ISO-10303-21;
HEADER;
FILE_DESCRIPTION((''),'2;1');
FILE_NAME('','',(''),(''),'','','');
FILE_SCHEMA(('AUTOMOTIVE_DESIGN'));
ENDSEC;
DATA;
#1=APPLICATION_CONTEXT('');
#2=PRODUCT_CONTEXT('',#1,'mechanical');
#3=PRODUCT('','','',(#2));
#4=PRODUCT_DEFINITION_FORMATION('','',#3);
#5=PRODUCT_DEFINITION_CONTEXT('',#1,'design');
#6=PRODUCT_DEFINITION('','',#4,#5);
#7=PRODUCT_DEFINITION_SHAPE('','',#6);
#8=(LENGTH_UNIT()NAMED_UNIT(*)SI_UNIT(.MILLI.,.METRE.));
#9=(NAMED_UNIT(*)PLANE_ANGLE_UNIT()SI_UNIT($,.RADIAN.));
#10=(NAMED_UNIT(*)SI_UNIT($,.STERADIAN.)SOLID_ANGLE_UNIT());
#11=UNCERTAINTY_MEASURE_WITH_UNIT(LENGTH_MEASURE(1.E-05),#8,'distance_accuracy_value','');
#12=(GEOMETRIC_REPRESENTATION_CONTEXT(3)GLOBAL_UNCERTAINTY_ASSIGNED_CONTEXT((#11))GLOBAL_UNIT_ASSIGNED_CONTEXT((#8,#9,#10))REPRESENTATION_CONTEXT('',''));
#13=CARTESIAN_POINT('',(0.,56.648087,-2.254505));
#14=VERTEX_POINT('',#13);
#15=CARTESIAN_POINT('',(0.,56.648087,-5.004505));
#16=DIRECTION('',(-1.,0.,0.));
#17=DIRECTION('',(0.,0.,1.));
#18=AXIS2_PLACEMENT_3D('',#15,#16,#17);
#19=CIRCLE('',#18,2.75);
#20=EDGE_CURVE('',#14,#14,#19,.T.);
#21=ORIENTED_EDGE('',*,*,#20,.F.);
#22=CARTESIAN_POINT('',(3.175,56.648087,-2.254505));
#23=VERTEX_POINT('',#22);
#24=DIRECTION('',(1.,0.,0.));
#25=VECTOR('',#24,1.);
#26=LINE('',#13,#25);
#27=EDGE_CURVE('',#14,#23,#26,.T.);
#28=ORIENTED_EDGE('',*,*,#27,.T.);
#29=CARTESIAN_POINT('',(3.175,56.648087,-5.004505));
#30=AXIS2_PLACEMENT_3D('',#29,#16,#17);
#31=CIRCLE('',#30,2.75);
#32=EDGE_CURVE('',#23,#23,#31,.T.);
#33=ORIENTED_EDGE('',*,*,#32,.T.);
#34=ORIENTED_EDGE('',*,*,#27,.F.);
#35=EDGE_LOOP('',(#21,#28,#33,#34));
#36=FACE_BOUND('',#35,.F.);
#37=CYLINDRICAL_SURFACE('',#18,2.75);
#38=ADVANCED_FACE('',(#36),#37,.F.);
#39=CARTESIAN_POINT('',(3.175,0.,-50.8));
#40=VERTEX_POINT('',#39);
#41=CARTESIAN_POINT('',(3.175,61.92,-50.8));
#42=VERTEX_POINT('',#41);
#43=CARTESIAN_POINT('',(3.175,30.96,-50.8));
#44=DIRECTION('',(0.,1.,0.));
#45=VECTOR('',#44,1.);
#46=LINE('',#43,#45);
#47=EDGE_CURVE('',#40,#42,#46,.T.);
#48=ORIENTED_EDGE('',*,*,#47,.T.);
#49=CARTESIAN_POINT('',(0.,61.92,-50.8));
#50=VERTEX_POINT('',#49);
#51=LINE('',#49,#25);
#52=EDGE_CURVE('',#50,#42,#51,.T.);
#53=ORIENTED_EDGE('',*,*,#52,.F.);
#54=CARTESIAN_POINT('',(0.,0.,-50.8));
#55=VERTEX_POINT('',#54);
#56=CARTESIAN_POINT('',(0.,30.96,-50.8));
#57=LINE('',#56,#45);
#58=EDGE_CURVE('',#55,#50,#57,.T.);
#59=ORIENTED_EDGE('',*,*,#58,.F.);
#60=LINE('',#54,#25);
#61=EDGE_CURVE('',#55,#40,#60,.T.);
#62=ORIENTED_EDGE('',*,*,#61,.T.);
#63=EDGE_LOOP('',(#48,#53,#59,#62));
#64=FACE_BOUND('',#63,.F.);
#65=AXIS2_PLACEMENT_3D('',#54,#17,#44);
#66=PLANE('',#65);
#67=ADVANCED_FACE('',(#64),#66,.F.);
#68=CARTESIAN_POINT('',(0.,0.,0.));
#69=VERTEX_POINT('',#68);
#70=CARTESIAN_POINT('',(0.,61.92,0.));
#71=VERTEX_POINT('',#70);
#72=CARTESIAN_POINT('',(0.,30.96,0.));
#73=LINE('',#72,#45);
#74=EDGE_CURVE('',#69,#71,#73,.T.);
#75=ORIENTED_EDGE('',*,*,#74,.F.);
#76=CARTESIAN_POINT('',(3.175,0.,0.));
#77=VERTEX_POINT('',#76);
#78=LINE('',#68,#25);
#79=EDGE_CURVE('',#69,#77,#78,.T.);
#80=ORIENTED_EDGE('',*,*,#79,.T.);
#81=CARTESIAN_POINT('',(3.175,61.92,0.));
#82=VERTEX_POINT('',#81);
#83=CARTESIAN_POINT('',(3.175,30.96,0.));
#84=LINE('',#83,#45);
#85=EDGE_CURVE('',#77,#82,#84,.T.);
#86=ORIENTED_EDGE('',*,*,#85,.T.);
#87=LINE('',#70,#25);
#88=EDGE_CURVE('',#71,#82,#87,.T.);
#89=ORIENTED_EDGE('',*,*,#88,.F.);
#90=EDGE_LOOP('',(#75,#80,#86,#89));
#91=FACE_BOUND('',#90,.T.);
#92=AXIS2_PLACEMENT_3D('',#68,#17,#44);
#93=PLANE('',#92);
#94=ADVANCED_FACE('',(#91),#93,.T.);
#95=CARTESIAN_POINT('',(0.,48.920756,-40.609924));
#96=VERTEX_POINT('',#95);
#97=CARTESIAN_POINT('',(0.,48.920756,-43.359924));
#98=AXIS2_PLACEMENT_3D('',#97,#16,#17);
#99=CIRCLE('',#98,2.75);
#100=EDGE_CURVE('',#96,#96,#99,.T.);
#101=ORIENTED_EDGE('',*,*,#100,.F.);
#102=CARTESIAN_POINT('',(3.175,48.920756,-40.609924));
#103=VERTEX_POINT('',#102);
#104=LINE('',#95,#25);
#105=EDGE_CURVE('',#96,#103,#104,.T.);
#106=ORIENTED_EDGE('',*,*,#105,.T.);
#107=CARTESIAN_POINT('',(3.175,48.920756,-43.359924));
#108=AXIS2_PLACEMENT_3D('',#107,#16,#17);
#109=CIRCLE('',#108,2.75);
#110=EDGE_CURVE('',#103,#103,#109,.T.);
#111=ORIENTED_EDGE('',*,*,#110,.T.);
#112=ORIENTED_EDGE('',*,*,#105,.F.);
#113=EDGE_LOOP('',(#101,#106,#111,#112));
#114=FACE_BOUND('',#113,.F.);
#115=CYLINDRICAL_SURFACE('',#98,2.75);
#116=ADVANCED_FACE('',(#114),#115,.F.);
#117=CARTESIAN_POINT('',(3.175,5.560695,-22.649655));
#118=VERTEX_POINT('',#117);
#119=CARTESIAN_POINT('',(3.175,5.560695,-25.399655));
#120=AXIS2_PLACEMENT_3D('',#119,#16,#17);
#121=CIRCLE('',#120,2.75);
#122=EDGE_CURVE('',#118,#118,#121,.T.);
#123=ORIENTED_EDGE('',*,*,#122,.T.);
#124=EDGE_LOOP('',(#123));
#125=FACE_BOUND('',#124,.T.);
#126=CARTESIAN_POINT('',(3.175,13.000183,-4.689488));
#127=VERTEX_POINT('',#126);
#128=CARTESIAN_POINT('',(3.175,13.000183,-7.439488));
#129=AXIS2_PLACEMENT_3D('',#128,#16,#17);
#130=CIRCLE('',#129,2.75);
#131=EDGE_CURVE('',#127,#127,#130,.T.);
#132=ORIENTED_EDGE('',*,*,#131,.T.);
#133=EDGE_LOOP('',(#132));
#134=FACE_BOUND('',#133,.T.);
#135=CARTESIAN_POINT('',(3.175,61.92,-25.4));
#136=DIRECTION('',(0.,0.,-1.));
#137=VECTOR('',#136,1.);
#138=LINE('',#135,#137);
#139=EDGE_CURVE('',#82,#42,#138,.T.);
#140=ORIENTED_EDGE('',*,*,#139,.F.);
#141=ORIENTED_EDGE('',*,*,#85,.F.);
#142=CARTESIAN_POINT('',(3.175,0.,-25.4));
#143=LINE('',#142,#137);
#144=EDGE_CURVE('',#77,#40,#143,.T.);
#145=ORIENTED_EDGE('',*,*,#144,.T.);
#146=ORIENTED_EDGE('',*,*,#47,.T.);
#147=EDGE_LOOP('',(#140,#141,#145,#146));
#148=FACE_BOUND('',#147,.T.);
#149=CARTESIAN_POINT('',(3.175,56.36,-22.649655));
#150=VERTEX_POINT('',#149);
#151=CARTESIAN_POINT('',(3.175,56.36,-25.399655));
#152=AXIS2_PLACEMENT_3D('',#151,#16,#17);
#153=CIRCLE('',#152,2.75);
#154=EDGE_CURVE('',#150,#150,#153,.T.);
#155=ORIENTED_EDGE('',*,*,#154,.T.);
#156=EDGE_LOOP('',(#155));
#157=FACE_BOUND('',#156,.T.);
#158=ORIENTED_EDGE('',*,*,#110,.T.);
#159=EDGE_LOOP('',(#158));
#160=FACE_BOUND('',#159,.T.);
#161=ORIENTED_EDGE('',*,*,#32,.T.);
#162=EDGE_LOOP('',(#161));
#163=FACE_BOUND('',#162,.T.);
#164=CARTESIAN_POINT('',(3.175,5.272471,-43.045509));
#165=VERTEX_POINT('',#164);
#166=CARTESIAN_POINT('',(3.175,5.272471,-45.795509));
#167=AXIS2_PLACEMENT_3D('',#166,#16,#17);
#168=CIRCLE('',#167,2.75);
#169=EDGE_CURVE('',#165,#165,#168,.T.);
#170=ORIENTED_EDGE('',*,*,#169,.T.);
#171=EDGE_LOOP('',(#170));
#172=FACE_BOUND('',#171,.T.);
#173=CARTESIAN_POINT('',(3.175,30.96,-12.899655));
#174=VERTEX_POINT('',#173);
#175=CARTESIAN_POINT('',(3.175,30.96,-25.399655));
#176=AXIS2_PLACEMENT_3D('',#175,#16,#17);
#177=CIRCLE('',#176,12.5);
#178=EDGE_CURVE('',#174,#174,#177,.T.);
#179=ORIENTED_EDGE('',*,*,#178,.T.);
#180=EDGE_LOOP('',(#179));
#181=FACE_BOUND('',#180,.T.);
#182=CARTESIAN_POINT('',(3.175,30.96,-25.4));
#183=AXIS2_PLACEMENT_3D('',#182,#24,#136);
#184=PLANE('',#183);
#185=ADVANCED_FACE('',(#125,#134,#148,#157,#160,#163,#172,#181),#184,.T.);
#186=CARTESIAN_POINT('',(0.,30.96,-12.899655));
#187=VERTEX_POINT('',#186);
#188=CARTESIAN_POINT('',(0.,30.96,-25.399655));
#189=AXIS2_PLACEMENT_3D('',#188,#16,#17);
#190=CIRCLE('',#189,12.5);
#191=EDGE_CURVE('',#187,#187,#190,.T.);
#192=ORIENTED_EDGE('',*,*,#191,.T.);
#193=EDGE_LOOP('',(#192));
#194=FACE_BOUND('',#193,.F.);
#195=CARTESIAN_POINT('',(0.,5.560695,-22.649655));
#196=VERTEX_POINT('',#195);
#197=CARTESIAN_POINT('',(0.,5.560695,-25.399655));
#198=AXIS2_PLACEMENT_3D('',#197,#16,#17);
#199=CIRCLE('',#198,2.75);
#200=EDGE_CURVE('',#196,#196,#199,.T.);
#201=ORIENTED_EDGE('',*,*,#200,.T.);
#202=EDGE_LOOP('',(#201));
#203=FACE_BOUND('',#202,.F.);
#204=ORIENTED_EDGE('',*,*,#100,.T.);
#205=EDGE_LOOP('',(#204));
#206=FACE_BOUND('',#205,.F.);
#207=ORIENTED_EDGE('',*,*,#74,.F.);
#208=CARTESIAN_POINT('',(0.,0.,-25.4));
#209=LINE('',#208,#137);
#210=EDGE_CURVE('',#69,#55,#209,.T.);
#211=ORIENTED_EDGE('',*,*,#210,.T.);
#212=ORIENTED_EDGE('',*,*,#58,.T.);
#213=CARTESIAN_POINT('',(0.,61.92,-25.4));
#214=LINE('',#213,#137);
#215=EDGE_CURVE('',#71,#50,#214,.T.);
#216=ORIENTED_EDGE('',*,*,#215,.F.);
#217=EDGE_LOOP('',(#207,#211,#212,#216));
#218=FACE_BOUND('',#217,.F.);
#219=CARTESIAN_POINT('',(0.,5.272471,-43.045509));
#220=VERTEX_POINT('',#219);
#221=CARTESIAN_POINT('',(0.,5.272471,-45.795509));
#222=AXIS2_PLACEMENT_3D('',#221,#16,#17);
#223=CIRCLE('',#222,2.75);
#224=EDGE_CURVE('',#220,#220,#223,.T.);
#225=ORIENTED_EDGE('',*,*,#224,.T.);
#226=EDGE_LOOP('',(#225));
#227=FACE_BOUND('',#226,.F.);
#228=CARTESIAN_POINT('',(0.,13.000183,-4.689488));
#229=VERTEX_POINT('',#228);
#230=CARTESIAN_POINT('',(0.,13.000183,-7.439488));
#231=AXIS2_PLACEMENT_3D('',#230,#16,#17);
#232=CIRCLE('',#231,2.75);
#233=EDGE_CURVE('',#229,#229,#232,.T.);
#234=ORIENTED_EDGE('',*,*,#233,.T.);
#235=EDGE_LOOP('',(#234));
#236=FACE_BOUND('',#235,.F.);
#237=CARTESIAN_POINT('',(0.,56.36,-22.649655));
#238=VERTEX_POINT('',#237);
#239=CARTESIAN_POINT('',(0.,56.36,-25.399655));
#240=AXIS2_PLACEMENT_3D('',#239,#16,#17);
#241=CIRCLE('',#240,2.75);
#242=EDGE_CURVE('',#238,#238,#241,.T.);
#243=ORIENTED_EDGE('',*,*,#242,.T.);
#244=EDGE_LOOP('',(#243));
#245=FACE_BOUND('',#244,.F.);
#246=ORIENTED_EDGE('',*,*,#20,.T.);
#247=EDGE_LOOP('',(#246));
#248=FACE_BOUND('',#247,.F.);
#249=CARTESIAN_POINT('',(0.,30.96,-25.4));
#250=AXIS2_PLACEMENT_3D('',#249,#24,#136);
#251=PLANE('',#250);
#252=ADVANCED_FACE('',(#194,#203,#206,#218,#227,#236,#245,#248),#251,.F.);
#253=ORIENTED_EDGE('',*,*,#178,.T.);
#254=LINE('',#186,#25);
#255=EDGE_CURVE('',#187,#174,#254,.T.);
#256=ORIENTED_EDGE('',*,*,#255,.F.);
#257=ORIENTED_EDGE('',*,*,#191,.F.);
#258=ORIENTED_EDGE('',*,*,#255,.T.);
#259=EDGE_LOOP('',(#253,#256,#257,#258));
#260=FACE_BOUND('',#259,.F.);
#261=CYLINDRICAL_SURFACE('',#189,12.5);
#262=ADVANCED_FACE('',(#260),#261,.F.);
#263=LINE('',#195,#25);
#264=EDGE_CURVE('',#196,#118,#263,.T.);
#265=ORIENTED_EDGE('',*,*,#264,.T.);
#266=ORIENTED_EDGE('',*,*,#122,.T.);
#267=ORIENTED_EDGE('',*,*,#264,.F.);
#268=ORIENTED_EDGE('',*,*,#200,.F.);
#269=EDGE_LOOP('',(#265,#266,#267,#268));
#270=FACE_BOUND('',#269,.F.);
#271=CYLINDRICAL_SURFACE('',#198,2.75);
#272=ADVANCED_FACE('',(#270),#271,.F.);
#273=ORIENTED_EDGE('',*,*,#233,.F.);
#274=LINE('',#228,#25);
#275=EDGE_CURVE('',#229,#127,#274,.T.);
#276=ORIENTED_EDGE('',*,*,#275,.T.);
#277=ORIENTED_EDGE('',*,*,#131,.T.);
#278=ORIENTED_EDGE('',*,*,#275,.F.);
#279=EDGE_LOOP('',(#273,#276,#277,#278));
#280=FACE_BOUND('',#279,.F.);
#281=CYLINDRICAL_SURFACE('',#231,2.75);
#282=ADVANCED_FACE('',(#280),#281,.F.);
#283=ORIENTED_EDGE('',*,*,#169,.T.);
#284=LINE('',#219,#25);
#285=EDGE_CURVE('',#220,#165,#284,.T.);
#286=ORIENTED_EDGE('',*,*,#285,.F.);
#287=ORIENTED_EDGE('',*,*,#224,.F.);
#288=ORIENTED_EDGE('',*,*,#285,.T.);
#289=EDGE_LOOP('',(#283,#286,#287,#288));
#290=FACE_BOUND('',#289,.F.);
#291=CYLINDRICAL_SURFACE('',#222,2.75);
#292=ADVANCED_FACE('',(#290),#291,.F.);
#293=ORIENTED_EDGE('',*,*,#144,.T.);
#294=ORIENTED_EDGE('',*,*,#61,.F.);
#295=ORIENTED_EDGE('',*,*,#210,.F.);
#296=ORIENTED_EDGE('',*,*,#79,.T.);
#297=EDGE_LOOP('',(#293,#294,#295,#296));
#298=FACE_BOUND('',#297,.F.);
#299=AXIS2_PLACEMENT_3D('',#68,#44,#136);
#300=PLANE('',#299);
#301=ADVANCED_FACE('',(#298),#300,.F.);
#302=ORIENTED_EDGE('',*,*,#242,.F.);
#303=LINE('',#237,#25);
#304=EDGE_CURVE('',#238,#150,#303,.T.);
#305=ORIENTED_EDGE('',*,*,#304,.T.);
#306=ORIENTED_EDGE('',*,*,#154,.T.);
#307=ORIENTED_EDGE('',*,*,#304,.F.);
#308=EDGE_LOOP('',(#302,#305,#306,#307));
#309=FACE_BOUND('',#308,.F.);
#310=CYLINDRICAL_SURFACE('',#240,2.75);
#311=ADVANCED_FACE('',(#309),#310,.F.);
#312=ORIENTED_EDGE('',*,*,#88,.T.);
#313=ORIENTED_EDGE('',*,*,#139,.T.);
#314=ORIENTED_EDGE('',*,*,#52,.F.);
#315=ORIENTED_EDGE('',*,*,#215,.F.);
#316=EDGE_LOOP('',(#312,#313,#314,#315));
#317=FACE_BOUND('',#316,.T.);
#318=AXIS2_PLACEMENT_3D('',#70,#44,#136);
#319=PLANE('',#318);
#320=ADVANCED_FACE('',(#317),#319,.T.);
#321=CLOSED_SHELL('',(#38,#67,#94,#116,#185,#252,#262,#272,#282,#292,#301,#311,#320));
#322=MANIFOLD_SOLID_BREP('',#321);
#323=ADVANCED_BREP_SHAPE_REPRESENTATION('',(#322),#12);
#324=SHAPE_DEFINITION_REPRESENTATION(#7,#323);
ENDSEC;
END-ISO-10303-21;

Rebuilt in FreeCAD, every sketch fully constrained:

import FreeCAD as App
import Part
import Sketcher


def add_polygon(sketch, points):
    """Adds a closed chain of lines whose ends are joined by coincident constraints."""
    first, n = sketch.GeometryCount, len(points)
    for a, b in zip(points, points[1:] + points[:1]):
        sketch.addGeometry(Part.LineSegment(App.Vector(*a, 0), App.Vector(*b, 0)), False)
    for i in range(n):
        sketch.addConstraint(Sketcher.Constraint("Coincident", first + i, 2, first + (i + 1) % n, 1))

doc = App.newDocument("Part")
params = doc.addObject("Spreadsheet::Sheet", "Params")
for row, (alias, value) in enumerate([
    ("sketch1_height", "50.8 mm"),
    ("sketch1_width", "61.92 mm"),
    ("pad1_length", "3.175 mm"),
    ("sketch2_diameter", "25 mm"),
    ("sketch2_diameter2", "5.5 mm"),
], start=1):
    params.set(f"A{row}", alias)
    params.set(f"B{row}", "=" + value)
    params.setAlias(f"B{row}", alias)

body = doc.addObject("PartDesign::Body", "Body")

sketch1 = body.newObject("Sketcher::SketchObject", "Sketch")
sketch1.AttachmentSupport = (doc.getObject("YZ_Plane"), [""])
sketch1.MapMode = "FlatFace"
add_polygon(sketch1, [(62, 0), (0, 0), (0, -51), (62, -51)])
sketch1.addConstraint([
    Sketcher.Constraint("Horizontal", 0),
    Sketcher.Constraint("Vertical", 1),
    Sketcher.Constraint("Horizontal", 2),
    Sketcher.Constraint("Vertical", 3),
    Sketcher.Constraint("Coincident", 0, 2, -1, 1),
    Sketcher.Constraint("DistanceY", 1, 2, 1, 1, 50.8),
    Sketcher.Constraint("DistanceX", 0, 2, 0, 1, 61.92),
])
sketch1.setExpression("Constraints[9]", "Params.sketch1_height")
sketch1.setExpression("Constraints[10]", "Params.sketch1_width")
pad1 = body.newObject("PartDesign::Pad", "Pad")
pad1.Profile = sketch1
pad1.setExpression("Length", "Params.pad1_length")

sketch2 = body.newObject("Sketcher::SketchObject", "Sketch001")
sketch2.AttachmentSupport = (doc.getObject("YZ_Plane"), [""])
sketch2.MapMode = "FlatFace"
sketch2.addGeometry([
    Part.Circle(App.Vector(56.4, -25.4, 0), App.Vector(0, 0, 1), 2.8),
    Part.Circle(App.Vector(48.9, -43.4, 0), App.Vector(0, 0, 1), 2.8),
    Part.Circle(App.Vector(56.6, -5, 0), App.Vector(0, 0, 1), 2.8),
    Part.Circle(App.Vector(13, -7.4, 0), App.Vector(0, 0, 1), 2.8),
    Part.Circle(App.Vector(5.3, -45.8, 0), App.Vector(0, 0, 1), 2.8),
    Part.Circle(App.Vector(5.6, -25.4, 0), App.Vector(0, 0, 1), 2.8),
    Part.Circle(App.Vector(31, -25.4, 0), App.Vector(0, 0, 1), 12.5),
], False)
sketch2.addConstraint([
    Sketcher.Constraint("Equal", 0, 1),
    Sketcher.Constraint("Equal", 1, 2),
    Sketcher.Constraint("Equal", 2, 3),
    Sketcher.Constraint("Equal", 3, 4),
    Sketcher.Constraint("Equal", 4, 5),
    Sketcher.Constraint("Horizontal", 0, 3, 5, 3),
    Sketcher.Constraint("Horizontal", 5, 3, 6, 3),
    Sketcher.Constraint("Diameter", 6, 25.0),
    Sketcher.Constraint("Diameter", 0, 5.5),
    Sketcher.Constraint("DistanceX", 6, 3, 0, 3, 25.4),
    Sketcher.Constraint("DistanceX", -1, 1, 0, 3, 56.36),
    Sketcher.Constraint("DistanceX", -1, 1, 4, 3, 5.272471),
    Sketcher.Constraint("DistanceY", 4, 3, -1, 1, 45.795509),
    Sketcher.Constraint("DistanceY", 1, 3, 0, 3, 17.960269),
    Sketcher.Constraint("DistanceY", 0, 3, 2, 3, 20.395151),
    Sketcher.Constraint("DistanceX", 1, 3, 2, 3, 7.727331),
    Sketcher.Constraint("DistanceX", 4, 3, 3, 3, 7.727712),
    Sketcher.Constraint("DistanceY", 4, 3, 3, 3, 38.356022),
    Sketcher.Constraint("DistanceX", 5, 3, 1, 3, 43.360061),
    Sketcher.Constraint("DistanceY", 0, 3, -1, 1, 25.399655),
    Sketcher.Constraint("DistanceX", -1, 1, 1, 3, 48.920756),
])
sketch2.setExpression("Constraints[7]", "Params.sketch2_diameter")
sketch2.setExpression("Constraints[8]", "Params.sketch2_diameter2")
pocket1 = body.newObject("PartDesign::Pocket", "Pocket")
pocket1.Profile = sketch2
pocket1.Type = "ThroughAll"
pocket1.Reversed = True

doc.recompute()
